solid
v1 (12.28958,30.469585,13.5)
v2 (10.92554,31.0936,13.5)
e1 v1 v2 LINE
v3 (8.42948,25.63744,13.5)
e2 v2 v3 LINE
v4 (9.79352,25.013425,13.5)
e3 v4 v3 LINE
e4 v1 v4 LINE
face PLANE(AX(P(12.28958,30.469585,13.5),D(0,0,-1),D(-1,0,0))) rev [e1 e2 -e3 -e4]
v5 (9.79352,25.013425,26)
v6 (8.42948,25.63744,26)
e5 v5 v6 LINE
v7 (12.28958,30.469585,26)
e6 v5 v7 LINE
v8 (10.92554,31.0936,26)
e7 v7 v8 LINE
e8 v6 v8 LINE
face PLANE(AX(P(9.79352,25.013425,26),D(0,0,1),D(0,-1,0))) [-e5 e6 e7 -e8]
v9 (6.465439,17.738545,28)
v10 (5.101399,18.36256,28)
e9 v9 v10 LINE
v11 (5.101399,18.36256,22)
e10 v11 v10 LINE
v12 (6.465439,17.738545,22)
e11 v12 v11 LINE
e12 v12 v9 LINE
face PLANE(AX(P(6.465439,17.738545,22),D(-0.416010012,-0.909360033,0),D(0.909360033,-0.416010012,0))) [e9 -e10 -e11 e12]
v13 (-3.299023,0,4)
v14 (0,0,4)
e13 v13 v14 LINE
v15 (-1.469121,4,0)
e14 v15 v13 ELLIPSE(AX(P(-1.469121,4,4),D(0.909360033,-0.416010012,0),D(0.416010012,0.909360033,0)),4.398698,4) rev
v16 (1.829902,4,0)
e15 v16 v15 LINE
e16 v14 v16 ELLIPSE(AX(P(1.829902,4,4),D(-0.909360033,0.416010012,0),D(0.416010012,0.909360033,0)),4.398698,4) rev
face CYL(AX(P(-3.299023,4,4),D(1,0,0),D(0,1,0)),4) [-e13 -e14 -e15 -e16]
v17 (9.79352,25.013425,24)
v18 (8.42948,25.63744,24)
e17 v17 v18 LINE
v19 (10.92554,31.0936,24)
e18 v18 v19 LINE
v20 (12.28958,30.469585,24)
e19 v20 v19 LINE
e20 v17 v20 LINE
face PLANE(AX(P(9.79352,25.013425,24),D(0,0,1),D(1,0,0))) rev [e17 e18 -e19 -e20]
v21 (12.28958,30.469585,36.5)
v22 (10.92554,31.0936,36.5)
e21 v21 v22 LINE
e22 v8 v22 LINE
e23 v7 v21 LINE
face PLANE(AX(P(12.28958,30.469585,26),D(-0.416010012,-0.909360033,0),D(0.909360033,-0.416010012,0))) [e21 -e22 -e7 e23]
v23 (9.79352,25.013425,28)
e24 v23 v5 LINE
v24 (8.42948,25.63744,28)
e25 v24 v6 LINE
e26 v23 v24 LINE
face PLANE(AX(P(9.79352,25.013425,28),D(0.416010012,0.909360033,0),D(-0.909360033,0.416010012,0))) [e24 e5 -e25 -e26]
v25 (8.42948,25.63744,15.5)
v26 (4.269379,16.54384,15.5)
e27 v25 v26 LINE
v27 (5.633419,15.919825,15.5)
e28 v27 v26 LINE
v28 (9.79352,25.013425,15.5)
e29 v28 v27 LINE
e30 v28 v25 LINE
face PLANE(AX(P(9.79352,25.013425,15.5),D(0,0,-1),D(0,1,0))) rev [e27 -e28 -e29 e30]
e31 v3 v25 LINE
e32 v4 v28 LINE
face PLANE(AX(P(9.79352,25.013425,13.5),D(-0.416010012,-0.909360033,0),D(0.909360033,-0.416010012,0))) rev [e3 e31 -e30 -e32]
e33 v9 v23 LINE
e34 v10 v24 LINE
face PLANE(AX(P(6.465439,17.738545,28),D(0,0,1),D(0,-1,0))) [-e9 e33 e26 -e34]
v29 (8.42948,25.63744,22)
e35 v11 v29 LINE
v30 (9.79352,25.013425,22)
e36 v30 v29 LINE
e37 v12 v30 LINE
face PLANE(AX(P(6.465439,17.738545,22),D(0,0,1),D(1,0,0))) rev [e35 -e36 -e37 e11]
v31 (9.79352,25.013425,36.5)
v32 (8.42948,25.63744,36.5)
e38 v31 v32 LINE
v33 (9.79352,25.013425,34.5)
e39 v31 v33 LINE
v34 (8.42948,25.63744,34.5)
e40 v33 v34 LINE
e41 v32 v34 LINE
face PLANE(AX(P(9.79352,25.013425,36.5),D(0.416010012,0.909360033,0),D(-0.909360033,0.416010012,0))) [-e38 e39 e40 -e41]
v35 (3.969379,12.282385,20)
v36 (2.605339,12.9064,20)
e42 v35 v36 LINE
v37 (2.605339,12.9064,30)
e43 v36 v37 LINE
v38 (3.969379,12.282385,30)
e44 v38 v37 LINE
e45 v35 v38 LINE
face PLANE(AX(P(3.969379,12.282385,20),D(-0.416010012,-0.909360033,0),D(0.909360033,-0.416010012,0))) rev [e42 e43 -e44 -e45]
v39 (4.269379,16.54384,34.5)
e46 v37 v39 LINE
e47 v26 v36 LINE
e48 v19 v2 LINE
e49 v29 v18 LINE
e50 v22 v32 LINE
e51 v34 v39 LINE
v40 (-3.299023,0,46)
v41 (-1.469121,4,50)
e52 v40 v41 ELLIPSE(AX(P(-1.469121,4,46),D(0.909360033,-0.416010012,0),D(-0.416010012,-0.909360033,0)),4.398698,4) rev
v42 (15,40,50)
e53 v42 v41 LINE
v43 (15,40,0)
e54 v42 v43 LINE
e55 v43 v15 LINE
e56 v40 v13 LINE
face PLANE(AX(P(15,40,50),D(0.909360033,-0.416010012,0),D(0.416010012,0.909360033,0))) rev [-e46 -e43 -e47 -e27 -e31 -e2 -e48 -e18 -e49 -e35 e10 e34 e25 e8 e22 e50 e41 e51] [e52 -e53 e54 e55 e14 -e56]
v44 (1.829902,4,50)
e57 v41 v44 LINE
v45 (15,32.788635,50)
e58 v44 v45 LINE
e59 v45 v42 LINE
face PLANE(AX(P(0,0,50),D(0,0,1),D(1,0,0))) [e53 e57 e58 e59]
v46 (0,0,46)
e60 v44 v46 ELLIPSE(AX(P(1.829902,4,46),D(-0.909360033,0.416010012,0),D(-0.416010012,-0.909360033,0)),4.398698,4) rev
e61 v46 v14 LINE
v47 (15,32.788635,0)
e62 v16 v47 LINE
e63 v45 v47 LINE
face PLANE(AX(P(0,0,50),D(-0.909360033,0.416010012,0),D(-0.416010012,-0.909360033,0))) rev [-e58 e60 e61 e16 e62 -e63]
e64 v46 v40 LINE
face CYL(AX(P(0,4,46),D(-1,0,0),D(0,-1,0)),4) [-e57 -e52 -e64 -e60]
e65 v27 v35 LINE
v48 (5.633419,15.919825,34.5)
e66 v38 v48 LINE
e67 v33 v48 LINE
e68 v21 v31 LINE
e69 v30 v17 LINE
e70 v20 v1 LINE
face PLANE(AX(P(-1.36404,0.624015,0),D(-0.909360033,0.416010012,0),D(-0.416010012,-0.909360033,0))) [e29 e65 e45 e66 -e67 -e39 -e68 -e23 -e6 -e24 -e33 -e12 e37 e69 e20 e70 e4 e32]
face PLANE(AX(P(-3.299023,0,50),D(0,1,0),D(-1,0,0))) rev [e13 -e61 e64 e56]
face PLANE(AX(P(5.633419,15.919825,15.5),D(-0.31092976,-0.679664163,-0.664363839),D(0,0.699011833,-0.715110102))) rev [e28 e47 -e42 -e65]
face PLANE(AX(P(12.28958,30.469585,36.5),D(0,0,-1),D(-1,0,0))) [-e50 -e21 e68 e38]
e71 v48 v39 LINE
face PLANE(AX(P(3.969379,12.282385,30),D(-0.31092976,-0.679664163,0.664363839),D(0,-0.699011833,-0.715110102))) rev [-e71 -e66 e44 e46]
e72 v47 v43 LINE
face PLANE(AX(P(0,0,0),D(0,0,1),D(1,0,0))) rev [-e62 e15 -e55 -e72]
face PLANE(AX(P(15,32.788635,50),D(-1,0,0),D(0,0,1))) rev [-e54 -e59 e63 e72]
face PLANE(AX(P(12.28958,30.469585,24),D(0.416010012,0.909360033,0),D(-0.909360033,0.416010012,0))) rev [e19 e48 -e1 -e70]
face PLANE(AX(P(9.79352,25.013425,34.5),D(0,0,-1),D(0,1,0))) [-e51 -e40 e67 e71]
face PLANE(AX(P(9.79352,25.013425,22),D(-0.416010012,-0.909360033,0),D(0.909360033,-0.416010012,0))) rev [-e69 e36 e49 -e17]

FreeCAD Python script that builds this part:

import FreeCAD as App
import Part
import Sketcher


def edges_at(feature, points):
    """Names of the edges that pass closest to the given points."""
    edges = feature.Shape.Edges
    near = lambda p: min(range(len(edges)), key=lambda i: edges[i].distToShape(Part.Vertex(*p))[0])
    return sorted({f"Edge{near(p) + 1}" for p in points})


def add_polygon(sketch, points):
    """Adds a closed chain of lines whose ends are joined by coincident constraints."""
    first, n = sketch.GeometryCount, len(points)
    for a, b in zip(points, points[1:] + points[:1]):
        sketch.addGeometry(Part.LineSegment(App.Vector(*a, 0), App.Vector(*b, 0)), False)
    for i in range(n):
        sketch.addConstraint(Sketcher.Constraint("Coincident", first + i, 2, first + (i + 1) % n, 1))

doc = App.newDocument("Part")
body = doc.addObject("PartDesign::Body", "Body")

# Sketch on XY plane
sketch1 = body.newObject("Sketcher::SketchObject", "Sketch")
sketch1.AttachmentSupport = (doc.getObject("XY_Plane"), [""])
sketch1.MapMode = "FlatFace"
add_polygon(sketch1, [(0, 0), (15, 32.8), (15, 40), (-3.3, 0)])  # lines 0-3
sketch1.addConstraint([
    Sketcher.Constraint("Vertical", 1),
    Sketcher.Constraint("Horizontal", 3),
    Sketcher.Constraint("Coincident", 3, 2, -1, 1),
    Sketcher.Constraint("Parallel", 0, 2),
    Sketcher.Constraint("DistanceX", -1, 1, 0, 2, 15.0),
    Sketcher.Constraint("DistanceY", -1, 1, 1, 2, 40.0),
    Sketcher.Constraint("Distance", 2, 43.986978),
])
pad1 = body.newObject("PartDesign::Pad", "Pad")
pad1.Profile = sketch1
pad1.Length = 50
doc.recompute()

fillet = body.newObject("PartDesign::Fillet", "Fillet")
fillet.Base = (pad1, edges_at(pad1, [(-1.65, 0, 50), (-1.65, 0, 0)]))
fillet.Radius = 4

# Sketch on an angled plane
sketch2 = body.newObject("Sketcher::SketchObject", "Sketch001")
sketch2.Placement = App.Placement(App.Vector(-2.72808, 1.24803, 0), App.Rotation(App.Vector(0, 0, 1), App.Vector(0.416010012, 0.909360033, 0), App.Vector(-0.909360033, 0.416010012, 0), "ZXY"))
add_polygon(sketch2, [(20, 12.8), (30, 12.8), (34.5, 16.8), (34.5, 26.8), (36.5, 26.8), (36.5, 32.8), (26, 32.8), (26, 26.8), (28, 26.8), (28, 18.8), (22, 18.8), (22, 26.8), (24, 26.8), (24, 32.8), (13.5, 32.8), (13.5, 26.8), (15.5, 26.8), (15.5, 16.8)])  # lines 0-17
sketch2.addConstraint([
    Sketcher.Constraint("Horizontal", 0),
    Sketcher.Constraint("Vertical", 2),
    Sketcher.Constraint("Horizontal", 3),
    Sketcher.Constraint("Vertical", 4),
    Sketcher.Constraint("Horizontal", 5),
    Sketcher.Constraint("Vertical", 6),
    Sketcher.Constraint("Horizontal", 7),
    Sketcher.Constraint("Vertical", 8),
    Sketcher.Constraint("Horizontal", 9),
    Sketcher.Constraint("Vertical", 10),
    Sketcher.Constraint("Horizontal", 11),
    Sketcher.Constraint("Vertical", 12),
    Sketcher.Constraint("Horizontal", 13),
    Sketcher.Constraint("Vertical", 14),
    Sketcher.Constraint("Horizontal", 15),
    Sketcher.Constraint("Vertical", 16),
    Sketcher.Constraint("Horizontal", 3, 2, 6, 2),
    Sketcher.Constraint("Horizontal", 7, 2, 10, 2),
    Sketcher.Constraint("Horizontal", 5, 2, 12, 2),
    Sketcher.Constraint("Horizontal", 11, 2, 14, 2),
    Sketcher.Constraint("Horizontal", 1, 2, 16, 2),
    Sketcher.Constraint("Equal", 3, 7),
    Sketcher.Constraint("Equal", 7, 11),
    Sketcher.Constraint("Equal", 5, 13),
    Sketcher.Constraint("Equal", 11, 15),
    Sketcher.Constraint("Equal", 0, 2),
    Sketcher.Constraint("Equal", 9, 4),
    Sketcher.Constraint("Equal", 1, 17),
    Sketcher.Constraint("DistanceX", 0, 1, 0, 2, 10.0),
    Sketcher.Constraint("DistanceX", 3, 1, 3, 2, 2.0),
    Sketcher.Constraint("DistanceX", 9, 2, 9, 1, 6.0),
    Sketcher.Constraint("DistanceY", 8, 2, 8, 1, 8.0),
    Sketcher.Constraint("DistanceX", 5, 2, 5, 1, 10.5),
    Sketcher.Constraint("DistanceX", -1, 1, 0, 2, 30.0),
    Sketcher.Constraint("DistanceY", 0, 2, 1, 2, 4.0),
    Sketcher.Constraint("DistanceY", -1, 1, 0, 2, 12.820411),
])
pocket1 = body.newObject("PartDesign::Pocket", "Pocket")
pocket1.Profile = sketch2
pocket1.Length = 1.5

doc.recompute()
